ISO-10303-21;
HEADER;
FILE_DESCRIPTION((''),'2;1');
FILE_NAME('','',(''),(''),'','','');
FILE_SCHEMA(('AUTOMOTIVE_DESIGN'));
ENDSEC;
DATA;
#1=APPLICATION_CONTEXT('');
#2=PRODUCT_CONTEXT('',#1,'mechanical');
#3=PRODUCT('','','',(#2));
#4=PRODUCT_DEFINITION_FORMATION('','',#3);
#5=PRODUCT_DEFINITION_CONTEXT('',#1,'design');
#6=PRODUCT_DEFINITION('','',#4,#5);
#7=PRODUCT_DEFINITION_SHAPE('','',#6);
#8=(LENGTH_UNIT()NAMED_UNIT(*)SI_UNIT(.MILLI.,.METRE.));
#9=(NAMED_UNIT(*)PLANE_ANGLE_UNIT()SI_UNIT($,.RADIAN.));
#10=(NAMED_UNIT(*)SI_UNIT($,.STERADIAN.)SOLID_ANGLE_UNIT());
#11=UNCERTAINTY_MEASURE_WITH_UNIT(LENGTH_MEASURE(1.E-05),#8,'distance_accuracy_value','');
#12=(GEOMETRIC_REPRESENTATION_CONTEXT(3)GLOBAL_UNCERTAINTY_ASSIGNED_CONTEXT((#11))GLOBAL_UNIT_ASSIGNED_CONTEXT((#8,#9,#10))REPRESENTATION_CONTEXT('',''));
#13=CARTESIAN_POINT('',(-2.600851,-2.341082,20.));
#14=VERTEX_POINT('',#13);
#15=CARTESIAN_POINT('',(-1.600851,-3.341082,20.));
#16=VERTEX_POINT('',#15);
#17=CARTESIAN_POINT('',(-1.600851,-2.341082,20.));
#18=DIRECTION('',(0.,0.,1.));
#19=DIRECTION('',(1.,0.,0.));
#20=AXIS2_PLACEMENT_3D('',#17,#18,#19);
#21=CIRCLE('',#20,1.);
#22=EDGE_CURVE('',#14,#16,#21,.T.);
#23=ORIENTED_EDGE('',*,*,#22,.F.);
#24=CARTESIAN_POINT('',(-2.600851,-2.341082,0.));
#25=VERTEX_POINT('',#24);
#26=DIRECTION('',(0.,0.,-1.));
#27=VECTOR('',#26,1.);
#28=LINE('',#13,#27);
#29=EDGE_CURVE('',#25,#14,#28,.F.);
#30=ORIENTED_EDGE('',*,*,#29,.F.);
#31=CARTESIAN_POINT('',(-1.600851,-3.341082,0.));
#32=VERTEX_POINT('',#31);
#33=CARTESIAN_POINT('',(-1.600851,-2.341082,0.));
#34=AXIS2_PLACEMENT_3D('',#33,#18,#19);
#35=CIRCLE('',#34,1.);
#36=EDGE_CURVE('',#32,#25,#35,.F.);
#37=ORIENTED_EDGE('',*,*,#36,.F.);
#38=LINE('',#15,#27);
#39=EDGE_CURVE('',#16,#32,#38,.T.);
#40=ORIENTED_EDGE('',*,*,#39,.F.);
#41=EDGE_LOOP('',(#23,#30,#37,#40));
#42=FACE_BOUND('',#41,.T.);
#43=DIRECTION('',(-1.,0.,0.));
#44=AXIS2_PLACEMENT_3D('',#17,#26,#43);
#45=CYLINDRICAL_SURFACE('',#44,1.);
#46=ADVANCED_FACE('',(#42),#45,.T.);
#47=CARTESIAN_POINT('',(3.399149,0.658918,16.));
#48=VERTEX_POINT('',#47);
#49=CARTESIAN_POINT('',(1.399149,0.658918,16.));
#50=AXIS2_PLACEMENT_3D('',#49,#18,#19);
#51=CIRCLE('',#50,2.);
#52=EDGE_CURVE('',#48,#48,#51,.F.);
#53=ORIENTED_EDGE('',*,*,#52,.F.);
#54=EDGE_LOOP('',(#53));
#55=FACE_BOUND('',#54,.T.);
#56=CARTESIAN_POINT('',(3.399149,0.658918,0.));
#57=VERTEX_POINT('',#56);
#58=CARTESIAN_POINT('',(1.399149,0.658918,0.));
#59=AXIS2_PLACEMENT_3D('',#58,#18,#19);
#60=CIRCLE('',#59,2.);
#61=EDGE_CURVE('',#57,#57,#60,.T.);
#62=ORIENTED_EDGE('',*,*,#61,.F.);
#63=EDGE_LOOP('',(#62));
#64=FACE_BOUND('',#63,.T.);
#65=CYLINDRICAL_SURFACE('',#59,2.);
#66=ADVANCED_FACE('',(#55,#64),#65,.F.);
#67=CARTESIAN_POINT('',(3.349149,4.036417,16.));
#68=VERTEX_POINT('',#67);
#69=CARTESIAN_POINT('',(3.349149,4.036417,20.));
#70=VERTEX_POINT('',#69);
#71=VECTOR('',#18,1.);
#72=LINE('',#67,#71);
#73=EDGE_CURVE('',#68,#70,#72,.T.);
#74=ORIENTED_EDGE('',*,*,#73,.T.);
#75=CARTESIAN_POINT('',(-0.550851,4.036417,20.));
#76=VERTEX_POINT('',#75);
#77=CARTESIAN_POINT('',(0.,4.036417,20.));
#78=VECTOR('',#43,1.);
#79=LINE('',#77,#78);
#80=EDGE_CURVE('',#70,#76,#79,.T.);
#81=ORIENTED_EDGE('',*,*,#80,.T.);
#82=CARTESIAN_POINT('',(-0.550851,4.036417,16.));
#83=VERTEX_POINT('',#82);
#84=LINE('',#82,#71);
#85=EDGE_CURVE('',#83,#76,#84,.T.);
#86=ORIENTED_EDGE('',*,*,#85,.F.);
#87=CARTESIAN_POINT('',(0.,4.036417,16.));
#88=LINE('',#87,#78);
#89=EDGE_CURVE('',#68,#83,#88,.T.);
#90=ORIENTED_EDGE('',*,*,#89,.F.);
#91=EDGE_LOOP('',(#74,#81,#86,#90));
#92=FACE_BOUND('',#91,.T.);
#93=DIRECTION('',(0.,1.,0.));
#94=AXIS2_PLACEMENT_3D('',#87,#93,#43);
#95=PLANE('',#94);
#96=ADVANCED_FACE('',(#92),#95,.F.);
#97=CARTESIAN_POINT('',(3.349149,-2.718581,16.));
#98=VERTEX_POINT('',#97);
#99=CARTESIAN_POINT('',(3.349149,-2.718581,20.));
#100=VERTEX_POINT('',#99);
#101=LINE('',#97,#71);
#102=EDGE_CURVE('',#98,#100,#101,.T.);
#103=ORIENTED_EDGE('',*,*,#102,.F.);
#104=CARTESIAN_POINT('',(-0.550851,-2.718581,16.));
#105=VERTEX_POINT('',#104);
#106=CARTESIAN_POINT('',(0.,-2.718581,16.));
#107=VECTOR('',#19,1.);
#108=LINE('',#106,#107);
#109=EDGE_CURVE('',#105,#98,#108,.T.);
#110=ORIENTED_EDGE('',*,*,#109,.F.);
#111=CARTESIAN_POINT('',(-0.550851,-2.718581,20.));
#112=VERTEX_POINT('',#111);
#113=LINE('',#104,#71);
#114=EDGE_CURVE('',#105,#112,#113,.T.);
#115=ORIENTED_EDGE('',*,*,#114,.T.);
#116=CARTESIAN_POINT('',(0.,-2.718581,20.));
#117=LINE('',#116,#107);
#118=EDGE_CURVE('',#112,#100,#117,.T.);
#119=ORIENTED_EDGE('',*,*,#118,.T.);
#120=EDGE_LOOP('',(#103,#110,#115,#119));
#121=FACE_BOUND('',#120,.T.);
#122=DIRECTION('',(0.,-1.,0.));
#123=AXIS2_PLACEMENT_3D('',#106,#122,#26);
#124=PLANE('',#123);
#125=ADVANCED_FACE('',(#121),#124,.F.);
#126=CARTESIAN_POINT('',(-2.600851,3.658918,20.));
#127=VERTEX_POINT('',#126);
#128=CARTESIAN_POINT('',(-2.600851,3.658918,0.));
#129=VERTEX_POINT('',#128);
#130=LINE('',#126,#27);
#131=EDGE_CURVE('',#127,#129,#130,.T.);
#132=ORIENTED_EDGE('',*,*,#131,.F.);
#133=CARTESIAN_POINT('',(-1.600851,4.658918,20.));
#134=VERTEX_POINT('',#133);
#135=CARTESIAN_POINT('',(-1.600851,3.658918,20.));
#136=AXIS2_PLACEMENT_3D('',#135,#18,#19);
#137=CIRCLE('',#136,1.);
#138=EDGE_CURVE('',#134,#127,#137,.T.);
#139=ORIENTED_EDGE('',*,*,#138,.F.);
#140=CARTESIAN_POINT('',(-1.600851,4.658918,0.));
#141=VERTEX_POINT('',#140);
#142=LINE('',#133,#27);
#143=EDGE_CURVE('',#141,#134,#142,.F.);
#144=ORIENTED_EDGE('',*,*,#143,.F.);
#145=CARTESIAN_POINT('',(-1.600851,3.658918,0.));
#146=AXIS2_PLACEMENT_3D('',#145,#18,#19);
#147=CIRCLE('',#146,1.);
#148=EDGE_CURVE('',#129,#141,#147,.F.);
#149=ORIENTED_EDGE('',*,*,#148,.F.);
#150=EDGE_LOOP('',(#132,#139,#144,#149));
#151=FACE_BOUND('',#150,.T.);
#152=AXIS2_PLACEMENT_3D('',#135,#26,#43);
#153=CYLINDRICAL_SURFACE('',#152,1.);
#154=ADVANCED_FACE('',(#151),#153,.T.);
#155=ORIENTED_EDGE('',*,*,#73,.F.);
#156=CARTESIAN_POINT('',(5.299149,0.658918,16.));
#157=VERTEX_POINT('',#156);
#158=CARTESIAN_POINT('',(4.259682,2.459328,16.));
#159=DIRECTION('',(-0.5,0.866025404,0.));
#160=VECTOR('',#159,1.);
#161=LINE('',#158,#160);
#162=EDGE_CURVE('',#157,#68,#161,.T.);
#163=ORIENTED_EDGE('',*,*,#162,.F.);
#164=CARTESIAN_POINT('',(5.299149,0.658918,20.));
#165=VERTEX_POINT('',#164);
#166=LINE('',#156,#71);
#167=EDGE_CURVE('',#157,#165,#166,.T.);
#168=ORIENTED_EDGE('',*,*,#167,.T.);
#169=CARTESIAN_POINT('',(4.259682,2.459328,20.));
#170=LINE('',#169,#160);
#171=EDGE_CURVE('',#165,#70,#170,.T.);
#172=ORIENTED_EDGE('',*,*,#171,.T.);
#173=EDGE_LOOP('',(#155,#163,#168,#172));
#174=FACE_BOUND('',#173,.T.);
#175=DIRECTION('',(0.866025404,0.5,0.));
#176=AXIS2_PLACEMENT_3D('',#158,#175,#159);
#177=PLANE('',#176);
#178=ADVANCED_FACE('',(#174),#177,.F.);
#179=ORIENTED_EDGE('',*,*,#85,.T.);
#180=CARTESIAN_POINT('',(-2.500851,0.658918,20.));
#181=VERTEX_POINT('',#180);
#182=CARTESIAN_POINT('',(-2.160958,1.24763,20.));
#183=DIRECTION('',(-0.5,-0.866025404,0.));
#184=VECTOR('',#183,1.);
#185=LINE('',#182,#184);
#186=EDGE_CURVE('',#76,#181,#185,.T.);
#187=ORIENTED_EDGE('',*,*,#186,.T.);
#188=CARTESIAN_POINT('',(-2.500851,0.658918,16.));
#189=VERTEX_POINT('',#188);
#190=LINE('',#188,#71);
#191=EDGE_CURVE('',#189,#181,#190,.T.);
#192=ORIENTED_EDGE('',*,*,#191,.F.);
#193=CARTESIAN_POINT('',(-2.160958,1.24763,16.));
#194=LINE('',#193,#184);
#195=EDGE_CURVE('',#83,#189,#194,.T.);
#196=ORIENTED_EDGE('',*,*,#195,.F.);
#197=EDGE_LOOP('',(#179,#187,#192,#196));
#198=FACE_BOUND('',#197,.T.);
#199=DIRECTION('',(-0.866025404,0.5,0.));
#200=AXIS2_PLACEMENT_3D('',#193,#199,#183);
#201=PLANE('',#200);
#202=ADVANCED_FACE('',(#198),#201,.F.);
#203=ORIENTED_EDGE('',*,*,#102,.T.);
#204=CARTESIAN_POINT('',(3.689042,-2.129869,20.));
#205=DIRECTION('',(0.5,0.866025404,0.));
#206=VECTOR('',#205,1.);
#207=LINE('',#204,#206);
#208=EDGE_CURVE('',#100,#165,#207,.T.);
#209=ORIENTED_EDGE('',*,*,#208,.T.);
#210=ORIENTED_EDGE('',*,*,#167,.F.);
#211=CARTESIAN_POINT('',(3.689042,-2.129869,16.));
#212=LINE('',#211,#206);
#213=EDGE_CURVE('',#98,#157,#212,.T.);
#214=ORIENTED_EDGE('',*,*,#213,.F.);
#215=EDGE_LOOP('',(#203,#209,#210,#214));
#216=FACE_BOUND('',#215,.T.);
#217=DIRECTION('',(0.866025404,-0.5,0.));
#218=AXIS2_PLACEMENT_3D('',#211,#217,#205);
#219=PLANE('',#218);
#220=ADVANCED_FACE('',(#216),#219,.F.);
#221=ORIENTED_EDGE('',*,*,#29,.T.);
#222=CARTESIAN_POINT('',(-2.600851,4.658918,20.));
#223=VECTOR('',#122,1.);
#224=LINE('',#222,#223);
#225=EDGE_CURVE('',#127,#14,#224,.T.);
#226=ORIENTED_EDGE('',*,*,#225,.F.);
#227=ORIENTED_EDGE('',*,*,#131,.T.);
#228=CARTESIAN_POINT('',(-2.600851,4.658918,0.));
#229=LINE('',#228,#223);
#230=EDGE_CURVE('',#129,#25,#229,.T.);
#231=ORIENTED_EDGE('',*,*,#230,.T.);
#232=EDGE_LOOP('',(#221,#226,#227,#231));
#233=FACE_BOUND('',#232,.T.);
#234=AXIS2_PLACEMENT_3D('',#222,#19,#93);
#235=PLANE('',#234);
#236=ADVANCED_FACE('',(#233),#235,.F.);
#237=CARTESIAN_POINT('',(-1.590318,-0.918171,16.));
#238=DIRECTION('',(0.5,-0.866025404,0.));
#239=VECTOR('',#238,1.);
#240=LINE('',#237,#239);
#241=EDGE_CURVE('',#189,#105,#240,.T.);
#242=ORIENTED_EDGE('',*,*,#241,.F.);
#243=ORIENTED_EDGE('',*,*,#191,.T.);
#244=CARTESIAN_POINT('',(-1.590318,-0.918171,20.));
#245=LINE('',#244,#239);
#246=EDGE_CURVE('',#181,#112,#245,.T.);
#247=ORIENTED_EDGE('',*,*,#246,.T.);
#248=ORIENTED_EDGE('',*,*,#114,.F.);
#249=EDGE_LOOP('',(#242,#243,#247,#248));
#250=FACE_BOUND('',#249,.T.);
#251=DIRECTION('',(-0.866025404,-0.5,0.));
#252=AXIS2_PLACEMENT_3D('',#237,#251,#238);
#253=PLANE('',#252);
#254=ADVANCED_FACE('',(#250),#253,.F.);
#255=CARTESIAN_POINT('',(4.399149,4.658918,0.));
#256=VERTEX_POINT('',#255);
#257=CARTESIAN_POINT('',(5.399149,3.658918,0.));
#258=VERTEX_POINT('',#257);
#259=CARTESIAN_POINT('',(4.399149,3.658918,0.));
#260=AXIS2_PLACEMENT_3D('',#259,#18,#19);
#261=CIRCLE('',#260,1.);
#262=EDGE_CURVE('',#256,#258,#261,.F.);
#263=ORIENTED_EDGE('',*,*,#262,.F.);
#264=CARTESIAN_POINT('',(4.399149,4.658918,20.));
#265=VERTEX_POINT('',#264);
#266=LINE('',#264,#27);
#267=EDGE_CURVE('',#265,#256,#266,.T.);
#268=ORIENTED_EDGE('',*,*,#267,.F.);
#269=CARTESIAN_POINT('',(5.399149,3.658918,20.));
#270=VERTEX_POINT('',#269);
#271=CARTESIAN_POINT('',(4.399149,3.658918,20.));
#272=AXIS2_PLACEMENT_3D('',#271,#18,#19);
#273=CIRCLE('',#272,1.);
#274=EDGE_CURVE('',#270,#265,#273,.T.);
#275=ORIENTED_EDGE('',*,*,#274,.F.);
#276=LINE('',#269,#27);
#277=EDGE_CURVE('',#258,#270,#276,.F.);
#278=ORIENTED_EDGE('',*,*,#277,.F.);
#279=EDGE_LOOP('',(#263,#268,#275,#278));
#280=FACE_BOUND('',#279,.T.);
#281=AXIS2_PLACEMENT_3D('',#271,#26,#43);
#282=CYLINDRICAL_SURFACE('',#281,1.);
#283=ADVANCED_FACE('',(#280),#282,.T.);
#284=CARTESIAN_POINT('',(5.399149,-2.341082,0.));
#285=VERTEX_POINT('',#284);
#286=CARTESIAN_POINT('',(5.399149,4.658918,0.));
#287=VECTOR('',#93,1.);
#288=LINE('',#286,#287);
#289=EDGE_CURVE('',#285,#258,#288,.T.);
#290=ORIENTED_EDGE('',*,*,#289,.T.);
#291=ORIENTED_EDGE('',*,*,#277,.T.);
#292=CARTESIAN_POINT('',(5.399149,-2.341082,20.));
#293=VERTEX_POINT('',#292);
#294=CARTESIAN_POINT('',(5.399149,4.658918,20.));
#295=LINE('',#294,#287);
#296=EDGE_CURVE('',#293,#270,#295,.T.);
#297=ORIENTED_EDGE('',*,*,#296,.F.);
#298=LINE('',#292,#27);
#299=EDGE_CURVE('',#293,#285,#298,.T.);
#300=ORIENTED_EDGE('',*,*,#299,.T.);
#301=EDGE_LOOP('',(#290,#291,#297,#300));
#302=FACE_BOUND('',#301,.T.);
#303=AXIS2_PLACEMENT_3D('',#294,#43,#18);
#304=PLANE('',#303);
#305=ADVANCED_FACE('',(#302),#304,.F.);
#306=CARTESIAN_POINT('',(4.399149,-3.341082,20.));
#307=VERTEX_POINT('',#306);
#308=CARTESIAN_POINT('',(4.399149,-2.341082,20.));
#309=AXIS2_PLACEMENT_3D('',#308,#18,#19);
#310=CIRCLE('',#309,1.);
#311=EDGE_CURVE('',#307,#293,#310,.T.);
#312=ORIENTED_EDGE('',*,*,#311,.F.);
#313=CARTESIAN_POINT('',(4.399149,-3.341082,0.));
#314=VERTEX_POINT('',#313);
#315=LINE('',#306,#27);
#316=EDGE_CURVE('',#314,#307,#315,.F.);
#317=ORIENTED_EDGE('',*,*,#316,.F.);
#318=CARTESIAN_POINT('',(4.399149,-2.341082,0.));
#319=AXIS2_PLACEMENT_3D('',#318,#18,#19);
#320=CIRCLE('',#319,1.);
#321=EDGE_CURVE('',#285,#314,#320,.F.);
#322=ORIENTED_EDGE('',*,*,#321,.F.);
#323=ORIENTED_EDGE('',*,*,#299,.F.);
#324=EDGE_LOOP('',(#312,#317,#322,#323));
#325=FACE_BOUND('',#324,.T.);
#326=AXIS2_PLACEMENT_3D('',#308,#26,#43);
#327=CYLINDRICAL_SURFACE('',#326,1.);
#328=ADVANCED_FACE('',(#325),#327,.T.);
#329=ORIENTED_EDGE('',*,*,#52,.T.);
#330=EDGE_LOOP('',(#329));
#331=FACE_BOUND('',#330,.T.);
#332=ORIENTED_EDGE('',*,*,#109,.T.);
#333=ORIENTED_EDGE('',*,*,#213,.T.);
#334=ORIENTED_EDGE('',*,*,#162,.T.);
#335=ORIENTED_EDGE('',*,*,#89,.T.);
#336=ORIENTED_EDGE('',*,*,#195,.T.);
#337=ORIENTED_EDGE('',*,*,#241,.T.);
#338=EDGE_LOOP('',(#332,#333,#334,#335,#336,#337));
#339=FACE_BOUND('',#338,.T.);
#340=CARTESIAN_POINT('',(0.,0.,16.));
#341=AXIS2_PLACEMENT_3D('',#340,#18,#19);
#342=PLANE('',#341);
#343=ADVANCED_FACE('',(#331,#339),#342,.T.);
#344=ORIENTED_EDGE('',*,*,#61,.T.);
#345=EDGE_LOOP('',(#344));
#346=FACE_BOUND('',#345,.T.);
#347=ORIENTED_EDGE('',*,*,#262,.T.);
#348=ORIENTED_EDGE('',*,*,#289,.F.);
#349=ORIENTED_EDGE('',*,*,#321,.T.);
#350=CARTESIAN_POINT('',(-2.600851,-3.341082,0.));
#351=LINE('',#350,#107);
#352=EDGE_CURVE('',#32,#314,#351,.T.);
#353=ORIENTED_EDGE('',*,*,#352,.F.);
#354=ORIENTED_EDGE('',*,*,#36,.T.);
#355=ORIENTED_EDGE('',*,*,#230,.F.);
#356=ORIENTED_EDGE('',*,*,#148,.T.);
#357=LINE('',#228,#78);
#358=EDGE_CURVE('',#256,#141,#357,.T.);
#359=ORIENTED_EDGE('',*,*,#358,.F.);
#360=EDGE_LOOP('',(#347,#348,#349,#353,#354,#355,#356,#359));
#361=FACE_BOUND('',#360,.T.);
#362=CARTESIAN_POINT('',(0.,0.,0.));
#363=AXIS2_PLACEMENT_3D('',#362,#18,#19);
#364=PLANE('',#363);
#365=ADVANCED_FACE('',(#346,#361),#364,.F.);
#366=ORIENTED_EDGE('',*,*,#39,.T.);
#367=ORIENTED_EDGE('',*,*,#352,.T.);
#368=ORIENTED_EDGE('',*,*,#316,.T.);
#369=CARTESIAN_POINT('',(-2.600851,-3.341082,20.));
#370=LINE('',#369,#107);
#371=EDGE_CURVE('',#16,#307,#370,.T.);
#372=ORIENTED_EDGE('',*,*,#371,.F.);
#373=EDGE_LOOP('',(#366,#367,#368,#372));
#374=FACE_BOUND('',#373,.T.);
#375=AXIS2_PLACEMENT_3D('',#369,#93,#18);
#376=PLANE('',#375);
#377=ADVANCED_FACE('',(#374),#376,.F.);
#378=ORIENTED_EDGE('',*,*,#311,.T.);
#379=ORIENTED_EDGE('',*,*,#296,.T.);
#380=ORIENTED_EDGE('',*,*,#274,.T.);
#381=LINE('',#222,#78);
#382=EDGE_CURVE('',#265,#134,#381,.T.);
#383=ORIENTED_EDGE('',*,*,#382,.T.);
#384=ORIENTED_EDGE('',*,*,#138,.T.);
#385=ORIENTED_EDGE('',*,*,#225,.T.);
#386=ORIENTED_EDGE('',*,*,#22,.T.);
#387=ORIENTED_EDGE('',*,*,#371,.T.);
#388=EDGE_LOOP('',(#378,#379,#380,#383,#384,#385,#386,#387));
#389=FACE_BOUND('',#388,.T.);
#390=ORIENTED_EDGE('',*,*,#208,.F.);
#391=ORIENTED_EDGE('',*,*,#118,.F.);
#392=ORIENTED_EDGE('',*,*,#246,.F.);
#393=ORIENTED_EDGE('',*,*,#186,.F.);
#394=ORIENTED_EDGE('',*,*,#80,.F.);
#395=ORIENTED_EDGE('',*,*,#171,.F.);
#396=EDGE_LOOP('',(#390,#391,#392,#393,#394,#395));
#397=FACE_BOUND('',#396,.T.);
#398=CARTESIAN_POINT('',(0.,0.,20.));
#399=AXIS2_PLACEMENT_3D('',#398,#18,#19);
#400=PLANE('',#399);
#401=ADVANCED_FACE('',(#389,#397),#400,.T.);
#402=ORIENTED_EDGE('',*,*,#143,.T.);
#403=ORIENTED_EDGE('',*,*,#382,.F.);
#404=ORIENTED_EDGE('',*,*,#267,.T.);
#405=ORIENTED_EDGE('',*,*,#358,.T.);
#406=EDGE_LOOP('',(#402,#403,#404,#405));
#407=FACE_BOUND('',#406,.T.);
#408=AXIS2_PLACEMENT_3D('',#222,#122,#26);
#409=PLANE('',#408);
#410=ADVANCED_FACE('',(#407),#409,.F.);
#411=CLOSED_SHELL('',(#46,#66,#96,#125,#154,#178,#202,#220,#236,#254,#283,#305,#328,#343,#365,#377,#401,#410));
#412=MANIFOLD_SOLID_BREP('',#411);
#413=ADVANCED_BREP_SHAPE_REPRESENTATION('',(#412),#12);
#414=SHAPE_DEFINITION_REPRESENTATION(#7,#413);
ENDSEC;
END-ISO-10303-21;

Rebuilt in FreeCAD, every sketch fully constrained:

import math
import FreeCAD as App
import Part
import Sketcher
from FreeCAD import Vector
Q = App.Units.Quantity


def edges_at(feature, points):
    """Names of the edges that pass closest to the given points."""
    edges = feature.Shape.Edges
    near = lambda p: min(range(len(edges)), key=lambda i: edges[i].distToShape(Part.Vertex(*p))[0])
    return sorted({f"Edge{near(p) + 1}" for p in points})

doc = App.newDocument("Part")
body = doc.addObject("PartDesign::Body", "Body")

sketch1 = doc.addObject("Sketcher::SketchObject", "Sketch")
body.addObject(sketch1)
sketch1.AttachmentSupport = (doc.XY_Plane, [""])
sketch1.MapMode = "FlatFace"
sketch1.addGeometry(Part.LineSegment(Vector(-3, 5, 0), Vector(-3, -3, 0)), False)
sketch1.addGeometry(Part.LineSegment(Vector(-3, -3, 0), Vector(5, -3, 0)), False)
sketch1.addGeometry(Part.LineSegment(Vector(5, -3, 0), Vector(5, 5, 0)), False)
sketch1.addGeometry(Part.LineSegment(Vector(5, 5, 0), Vector(-3, 5, 0)), False)
sketch1.addConstraint(Sketcher.Constraint("Coincident", 0, 2, 1, 1))
sketch1.addConstraint(Sketcher.Constraint("Coincident", 1, 2, 2, 1))
sketch1.addConstraint(Sketcher.Constraint("Coincident", 2, 2, 3, 1))
sketch1.addConstraint(Sketcher.Constraint("Coincident", 3, 2, 0, 1))
sketch1.addConstraint(Sketcher.Constraint("Vertical", 0))
sketch1.addConstraint(Sketcher.Constraint("Horizontal", 1))
sketch1.addConstraint(Sketcher.Constraint("Vertical", 2))
sketch1.addConstraint(Sketcher.Constraint("Horizontal", 3))
sketch1.addConstraint(Sketcher.Constraint("Equal", 3, 0))
sketch1.addConstraint(Sketcher.Constraint("DistanceX", 1, 1, 1, 2, Q("8 mm")))
sketch1.addConstraint(Sketcher.Constraint("DistanceX", 0, 2, -1, 1, Q("2.600851 mm")))
sketch1.addConstraint(Sketcher.Constraint("DistanceY", 0, 2, -1, 1, Q("3.341082 mm")))
pad1 = doc.addObject("PartDesign::Pad", "Pad")
body.addObject(pad1)
pad1.Profile = sketch1
pad1.Length = 20

sketch2 = doc.addObject("Sketcher::SketchObject", "Sketch001")
body.addObject(sketch2)
sketch2.AttachmentSupport = (doc.XY_Plane, [""])
sketch2.MapMode = "FlatFace"
sketch2.AttachmentOffset = App.Placement(Vector(0, 0, 20), App.Rotation())
sketch2.addGeometry(Part.ArcOfCircle(Part.Circle(Vector(1.4, 0.7, 0), Vector(0, 0, 1), 2), math.radians(0), math.radians(135)), False)
sketch2.addGeometry(Part.ArcOfCircle(Part.Circle(Vector(1.4, 0.7, 0), Vector(0, 0, 1), 2), math.radians(135), math.radians(315)), False)
sketch2.addGeometry(Part.ArcOfCircle(Part.Circle(Vector(1.4, 0.7, 0), Vector(0, 0, 1), 2), math.radians(-45), math.radians(0)), False)
sketch2.addConstraint(Sketcher.Constraint("Tangent", 0, 2, 1, 1))
sketch2.addConstraint(Sketcher.Constraint("Tangent", 1, 2, 2, 1))
sketch2.addConstraint(Sketcher.Constraint("Tangent", 2, 2, 0, 1))
sketch2.addConstraint(Sketcher.Constraint("Horizontal", 1, 3, 2, 2))
sketch2.addConstraint(Sketcher.Constraint("Radius", 0, Q("2 mm")))
sketch2.addConstraint(Sketcher.Constraint("DistanceX", -1, 1, 0, 3, Q("1.399149 mm")))
sketch2.addConstraint(Sketcher.Constraint("DistanceY", -1, 1, 0, 2, Q("2.073132 mm")))
sketch2.addConstraint(Sketcher.Constraint("DistanceY", -1, 1, 0, 3, Q("0.658918 mm")))
sketch2.addConstraint(Sketcher.Constraint("DistanceX", -1, 1, 1, 2, Q("2.813363 mm")))
pocket1 = doc.addObject("PartDesign::Pocket", "Pocket")
body.addObject(pocket1)
pocket1.Profile = sketch2
pocket1.Length = 20

sketch3 = doc.addObject("Sketcher::SketchObject", "Sketch002")
body.addObject(sketch3)
sketch3.AttachmentSupport = (doc.XY_Plane, [""])
sketch3.MapMode = "FlatFace"
sketch3.AttachmentOffset = App.Placement(Vector(0, 0, 20), App.Rotation())
sketch3.addGeometry(Part.LineSegment(Vector(-2.5, 0.7, 0), Vector(-0.6, -2.7, 0)), False)
sketch3.addGeometry(Part.LineSegment(Vector(-0.6, -2.7, 0), Vector(3.3, -2.7, 0)), False)
sketch3.addGeometry(Part.LineSegment(Vector(3.3, -2.7, 0), Vector(5.3, 0.7, 0)), False)
sketch3.addGeometry(Part.LineSegment(Vector(5.3, 0.7, 0), Vector(3.3, 4, 0)), False)
sketch3.addGeometry(Part.LineSegment(Vector(3.3, 4, 0), Vector(-0.6, 4, 0)), False)
sketch3.addGeometry(Part.LineSegment(Vector(-0.6, 4, 0), Vector(-2.5, 0.7, 0)), False)
sketch3.addConstraint(Sketcher.Constraint("Coincident", 0, 2, 1, 1))
sketch3.addConstraint(Sketcher.Constraint("Coincident", 1, 2, 2, 1))
sketch3.addConstraint(Sketcher.Constraint("Coincident", 2, 2, 3, 1))
sketch3.addConstraint(Sketcher.Constraint("Coincident", 3, 2, 4, 1))
sketch3.addConstraint(Sketcher.Constraint("Coincident", 4, 2, 5, 1))
sketch3.addConstraint(Sketcher.Constraint("Coincident", 5, 2, 0, 1))
sketch3.addConstraint(Sketcher.Constraint("Horizontal", 1))
sketch3.addConstraint(Sketcher.Constraint("Horizontal", 4))
sketch3.addConstraint(Sketcher.Constraint("Parallel", 0, 3))
sketch3.addConstraint(Sketcher.Constraint("Parallel", 2, 5))
sketch3.addConstraint(Sketcher.Constraint("Horizontal", 2, 2, 5, 2))
sketch3.addConstraint(Sketcher.Constraint("Vertical", 1, 2, 3, 2))
sketch3.addConstraint(Sketcher.Constraint("Vertical", 0, 2, 4, 2))
sketch3.addConstraint(Sketcher.Constraint("Angle", 0, Q("-60 deg")))
sketch3.addConstraint(Sketcher.Constraint("DistanceX", 1, 1, 1, 2, Q("3.9 mm")))
sketch3.addConstraint(Sketcher.Constraint("Distance", 0, Q("3.9 mm")))
sketch3.addConstraint(Sketcher.Constraint("DistanceX", 0, 2, -1, 1, Q("0.550851 mm")))
sketch3.addConstraint(Sketcher.Constraint("DistanceY", 0, 2, -1, 1, Q("2.718581 mm")))
pocket2 = doc.addObject("PartDesign::Pocket", "Pocket001")
body.addObject(pocket2)
pocket2.Profile = sketch3
pocket2.Length = 4
doc.recompute()

fillet = doc.addObject("PartDesign::Fillet", "Fillet")
body.addObject(fillet)
fillet.Base = (pocket2, edges_at(pocket2, [(-2.601, 4.659, 10), (5.399, 4.659, 10), (5.399, -3.341, 10)]))
fillet.Radius = 1
doc.recompute()

fillet2 = doc.addObject("PartDesign::Fillet", "Fillet001")
body.addObject(fillet2)
fillet2.Base = (fillet, edges_at(fillet, [(-2.601, -3.341, 10)]))
fillet2.Radius = 1

doc.recompute()
